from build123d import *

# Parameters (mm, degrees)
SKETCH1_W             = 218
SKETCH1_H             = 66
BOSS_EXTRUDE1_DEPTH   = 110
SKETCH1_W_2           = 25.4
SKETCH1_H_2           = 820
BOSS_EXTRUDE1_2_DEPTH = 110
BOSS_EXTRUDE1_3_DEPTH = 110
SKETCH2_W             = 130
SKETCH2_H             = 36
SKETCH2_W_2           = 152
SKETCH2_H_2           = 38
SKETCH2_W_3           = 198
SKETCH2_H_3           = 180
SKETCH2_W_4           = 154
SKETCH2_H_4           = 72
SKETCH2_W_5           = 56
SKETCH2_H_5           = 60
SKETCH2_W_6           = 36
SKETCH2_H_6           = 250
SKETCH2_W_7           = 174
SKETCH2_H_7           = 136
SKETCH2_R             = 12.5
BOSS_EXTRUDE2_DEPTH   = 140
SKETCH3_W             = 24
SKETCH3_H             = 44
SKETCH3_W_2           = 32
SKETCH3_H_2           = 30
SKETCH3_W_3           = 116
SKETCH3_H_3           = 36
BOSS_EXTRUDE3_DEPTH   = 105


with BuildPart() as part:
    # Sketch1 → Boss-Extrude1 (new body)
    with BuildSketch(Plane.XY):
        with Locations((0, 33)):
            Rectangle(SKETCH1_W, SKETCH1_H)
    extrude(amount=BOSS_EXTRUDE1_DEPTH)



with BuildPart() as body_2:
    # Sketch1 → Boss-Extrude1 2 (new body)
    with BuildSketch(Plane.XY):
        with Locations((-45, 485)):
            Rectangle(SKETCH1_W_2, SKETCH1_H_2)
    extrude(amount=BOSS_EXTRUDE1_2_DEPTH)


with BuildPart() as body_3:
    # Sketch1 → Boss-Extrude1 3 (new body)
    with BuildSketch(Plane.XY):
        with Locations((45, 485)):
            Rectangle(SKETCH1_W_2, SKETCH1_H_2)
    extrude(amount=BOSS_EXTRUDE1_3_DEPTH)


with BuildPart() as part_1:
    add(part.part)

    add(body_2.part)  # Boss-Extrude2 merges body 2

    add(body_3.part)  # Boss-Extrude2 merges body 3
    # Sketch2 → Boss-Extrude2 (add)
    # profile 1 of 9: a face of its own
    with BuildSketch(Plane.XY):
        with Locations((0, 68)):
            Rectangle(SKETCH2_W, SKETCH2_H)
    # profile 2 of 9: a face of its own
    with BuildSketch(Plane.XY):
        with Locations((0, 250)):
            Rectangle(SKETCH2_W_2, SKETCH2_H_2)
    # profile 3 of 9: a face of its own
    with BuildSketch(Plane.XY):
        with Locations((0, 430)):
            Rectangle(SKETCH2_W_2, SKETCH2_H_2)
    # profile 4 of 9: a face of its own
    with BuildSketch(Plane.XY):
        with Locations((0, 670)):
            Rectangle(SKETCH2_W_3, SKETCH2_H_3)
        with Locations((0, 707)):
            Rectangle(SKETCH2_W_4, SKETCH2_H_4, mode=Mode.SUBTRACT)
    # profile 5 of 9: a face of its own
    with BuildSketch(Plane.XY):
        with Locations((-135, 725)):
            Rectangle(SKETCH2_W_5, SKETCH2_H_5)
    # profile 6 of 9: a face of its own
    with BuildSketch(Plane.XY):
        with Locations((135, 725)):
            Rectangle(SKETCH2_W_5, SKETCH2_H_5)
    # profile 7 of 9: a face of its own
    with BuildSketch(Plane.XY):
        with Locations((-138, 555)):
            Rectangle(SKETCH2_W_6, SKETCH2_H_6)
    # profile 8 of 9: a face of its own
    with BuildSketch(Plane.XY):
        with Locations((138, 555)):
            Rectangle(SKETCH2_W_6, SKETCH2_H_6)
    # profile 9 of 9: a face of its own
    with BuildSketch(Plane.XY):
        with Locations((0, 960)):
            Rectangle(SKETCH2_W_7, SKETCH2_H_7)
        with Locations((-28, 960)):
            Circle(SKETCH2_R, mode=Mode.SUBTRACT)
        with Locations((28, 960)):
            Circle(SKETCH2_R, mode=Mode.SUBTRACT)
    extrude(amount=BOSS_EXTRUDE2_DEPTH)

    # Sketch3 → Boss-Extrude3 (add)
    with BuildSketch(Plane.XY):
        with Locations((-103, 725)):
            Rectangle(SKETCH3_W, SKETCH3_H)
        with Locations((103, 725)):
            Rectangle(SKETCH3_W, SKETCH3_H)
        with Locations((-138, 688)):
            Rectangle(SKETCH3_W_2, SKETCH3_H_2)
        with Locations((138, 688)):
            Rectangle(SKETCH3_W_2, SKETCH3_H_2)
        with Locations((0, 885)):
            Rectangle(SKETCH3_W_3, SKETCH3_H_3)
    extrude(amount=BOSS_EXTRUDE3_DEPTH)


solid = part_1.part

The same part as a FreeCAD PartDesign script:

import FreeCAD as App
import Part
import Sketcher

V = App.Vector

doc = App.newDocument("Part")
params = doc.addObject("Spreadsheet::Sheet", "Params")
for row, (alias, value) in enumerate([
    ("sketch1_width", "218 mm"),
    ("sketch1_height", "66 mm"),
    ("pad1_length", "110 mm"),
    ("sketch2_height", "820 mm"),
    ("sketch2_width", "25.4 mm"),
    ("pad2_length", "110 mm"),
    ("sketch3_height", "820 mm"),
    ("sketch3_width", "25.4 mm"),
    ("pad3_length", "110 mm"),
    ("sketch4_diameter", "25 mm"),
    ("sketch4_width", "130 mm"),
    ("sketch4_width2", "152 mm"),
    ("sketch4_width3", "198 mm"),
    ("sketch4_width4", "154 mm"),
    ("pad4_length", "140 mm"),
    ("sketch5_width", "24 mm"),
    ("sketch5_width2", "32 mm"),
    ("sketch5_width3", "116 mm"),
    ("sketch5_height", "44 mm"),
    ("sketch5_height2", "30 mm"),
    ("pad5_length", "105 mm"),
], start=1):
    params.set(f"A{row}", alias)
    params.set(f"B{row}", "=" + value)
    params.setAlias(f"B{row}", alias)

body = doc.addObject("PartDesign::Body", "Body")

sketch1 = body.newObject("Sketcher::SketchObject", "Sketch")
sketch1.AttachmentSupport = (doc.getObject("XY_Plane"), [""])
sketch1.MapMode = "FlatFace"
sketch1.addGeometry([
    Part.LineSegment(V(-109, 66, 0), V(-109, 0, 0)),
    Part.LineSegment(V(-109, 0, 0), V(109, 0, 0)),
    Part.LineSegment(V(109, 0, 0), V(109, 66, 0)),
    Part.LineSegment(V(109, 66, 0), V(-109, 66, 0)),
], False)
sketch1.addConstraint([
    Sketcher.Constraint("Coincident", 0, 2, 1, 1),
    Sketcher.Constraint("Coincident", 1, 2, 2, 1),
    Sketcher.Constraint("Coincident", 2, 2, 3, 1),
    Sketcher.Constraint("Coincident", 3, 2, 0, 1),
    Sketcher.Constraint("Vertical", 0),
    Sketcher.Constraint("Horizontal", 1),
    Sketcher.Constraint("Vertical", 2),
    Sketcher.Constraint("Horizontal", 3),
    Sketcher.Constraint("Symmetric", 0, 2, 1, 2, -1, 1),
    Sketcher.Constraint("DistanceX", 1, 1, 1, 2, 218.0),
    Sketcher.Constraint("DistanceY", 0, 2, 0, 1, 66.0),
])
sketch1.setExpression("Constraints[9]", "Params.sketch1_width")
sketch1.setExpression("Constraints[10]", "Params.sketch1_height")
pad1 = body.newObject("PartDesign::Pad", "Pad")
pad1.Profile = sketch1
pad1.setExpression("Length", "Params.pad1_length")
body2 = doc.addObject("PartDesign::Body", "Body001")

sketch2 = body2.newObject("Sketcher::SketchObject", "Sketch001")
sketch2.AttachmentSupport = (doc.getObject("XY_Plane001"), [""])
sketch2.MapMode = "FlatFace"
sketch2.addGeometry([
    Part.LineSegment(V(-57.7, 895, 0), V(-57.7, 75, 0)),
    Part.LineSegment(V(-57.7, 75, 0), V(-32.3, 75, 0)),
    Part.LineSegment(V(-32.3, 75, 0), V(-32.3, 895, 0)),
    Part.LineSegment(V(-32.3, 895, 0), V(-57.7, 895, 0)),
], False)
sketch2.addConstraint([
    Sketcher.Constraint("Coincident", 0, 2, 1, 1),
    Sketcher.Constraint("Coincident", 1, 2, 2, 1),
    Sketcher.Constraint("Coincident", 2, 2, 3, 1),
    Sketcher.Constraint("Coincident", 3, 2, 0, 1),
    Sketcher.Constraint("Vertical", 0),
    Sketcher.Constraint("Horizontal", 1),
    Sketcher.Constraint("Vertical", 2),
    Sketcher.Constraint("Horizontal", 3),
    Sketcher.Constraint("DistanceY", 0, 2, 0, 1, 820.0),
    Sketcher.Constraint("DistanceX", 1, 1, 1, 2, 25.4),
    Sketcher.Constraint("DistanceY", -1, 1, 0, 2, 75.0),
    Sketcher.Constraint("DistanceX", 0, 2, -1, 1, 57.7),
])
sketch2.setExpression("Constraints[8]", "Params.sketch2_height")
sketch2.setExpression("Constraints[9]", "Params.sketch2_width")
pad2 = body2.newObject("PartDesign::Pad", "Pad001")
pad2.Profile = sketch2
pad2.setExpression("Length", "Params.pad2_length")
body3 = doc.addObject("PartDesign::Body", "Body002")

sketch3 = body3.newObject("Sketcher::SketchObject", "Sketch002")
sketch3.AttachmentSupport = (doc.getObject("XY_Plane002"), [""])
sketch3.MapMode = "FlatFace"
sketch3.addGeometry([
    Part.LineSegment(V(32.3, 895, 0), V(32.3, 75, 0)),
    Part.LineSegment(V(32.3, 75, 0), V(57.7, 75, 0)),
    Part.LineSegment(V(57.7, 75, 0), V(57.7, 895, 0)),
    Part.LineSegment(V(57.7, 895, 0), V(32.3, 895, 0)),
], False)
sketch3.addConstraint([
    Sketcher.Constraint("Coincident", 0, 2, 1, 1),
    Sketcher.Constraint("Coincident", 1, 2, 2, 1),
    Sketcher.Constraint("Coincident", 2, 2, 3, 1),
    Sketcher.Constraint("Coincident", 3, 2, 0, 1),
    Sketcher.Constraint("Vertical", 0),
    Sketcher.Constraint("Horizontal", 1),
    Sketcher.Constraint("Vertical", 2),
    Sketcher.Constraint("Horizontal", 3),
    Sketcher.Constraint("DistanceY", 0, 2, 0, 1, 820.0),
    Sketcher.Constraint("DistanceX", 1, 1, 1, 2, 25.4),
    Sketcher.Constraint("DistanceY", -1, 1, 0, 2, 75.0),
    Sketcher.Constraint("DistanceX", -1, 1, 0, 2, 32.3),
])
sketch3.setExpression("Constraints[8]", "Params.sketch3_height")
sketch3.setExpression("Constraints[9]", "Params.sketch3_width")
pad3 = body3.newObject("PartDesign::Pad", "Pad002")
pad3.Profile = sketch3
pad3.setExpression("Length", "Params.pad3_length")
body.AllowCompound = True
doc.recompute()

boolean = body.newObject("PartDesign::Boolean", "Boolean")
boolean.Type = "Fuse"
boolean.addObjects([body2])
doc.recompute()

boolean2 = body.newObject("PartDesign::Boolean", "Boolean001")
boolean2.Type = "Fuse"
boolean2.addObjects([body3])

sketch4 = body.newObject("Sketcher::SketchObject", "Sketch003")
sketch4.AttachmentSupport = (doc.getObject("XY_Plane"), [""])
sketch4.MapMode = "FlatFace"
sketch4.addGeometry([
    Part.LineSegment(V(-65, 86, 0), V(-65, 50, 0)),
    Part.LineSegment(V(-65, 50, 0), V(65, 50, 0)),
    Part.LineSegment(V(65, 50, 0), V(65, 86, 0)),
    Part.LineSegment(V(65, 86, 0), V(-65, 86, 0)),
    Part.LineSegment(V(-76, 269, 0), V(-76, 231, 0)),
    Part.LineSegment(V(-76, 231, 0), V(76, 231, 0)),
    Part.LineSegment(V(76, 231, 0), V(76, 269, 0)),
    Part.LineSegment(V(76, 269, 0), V(-76, 269, 0)),
    Part.LineSegment(V(-76, 449, 0), V(-76, 411, 0)),
    Part.LineSegment(V(-76, 411, 0), V(76, 411, 0)),
    Part.LineSegment(V(76, 411, 0), V(76, 449, 0)),
    Part.LineSegment(V(76, 449, 0), V(-76, 449, 0)),
    Part.LineSegment(V(-99, 760, 0), V(-99, 580, 0)),
    Part.LineSegment(V(-99, 580, 0), V(99, 580, 0)),
    Part.LineSegment(V(99, 580, 0), V(99, 760, 0)),
    Part.LineSegment(V(99, 760, 0), V(-99, 760, 0)),
    Part.LineSegment(V(77, 671, 0), V(-77, 671, 0)),
    Part.LineSegment(V(-77, 671, 0), V(-77, 743, 0)),
    Part.LineSegment(V(-77, 743, 0), V(77, 743, 0)),
    Part.LineSegment(V(77, 743, 0), V(77, 671, 0)),
    Part.LineSegment(V(-163, 755, 0), V(-163, 695, 0)),
    Part.LineSegment(V(-163, 695, 0), V(-107, 695, 0)),
    Part.LineSegment(V(-107, 695, 0), V(-107, 755, 0)),
    Part.LineSegment(V(-107, 755, 0), V(-163, 755, 0)),
    Part.LineSegment(V(107, 755, 0), V(107, 695, 0)),
    Part.LineSegment(V(107, 695, 0), V(163, 695, 0)),
    Part.LineSegment(V(163, 695, 0), V(163, 755, 0)),
    Part.LineSegment(V(163, 755, 0), V(107, 755, 0)),
    Part.LineSegment(V(-156, 680, 0), V(-156, 430, 0)),
    Part.LineSegment(V(-156, 430, 0), V(-120, 430, 0)),
    Part.LineSegment(V(-120, 430, 0), V(-120, 680, 0)),
    Part.LineSegment(V(-120, 680, 0), V(-156, 680, 0)),
    Part.LineSegment(V(120, 680, 0), V(120, 430, 0)),
    Part.LineSegment(V(120, 430, 0), V(156, 430, 0)),
    Part.LineSegment(V(156, 430, 0), V(156, 680, 0)),
    Part.LineSegment(V(156, 680, 0), V(120, 680, 0)),
    Part.LineSegment(V(-87, 1028, 0), V(-87, 892, 0)),
    Part.LineSegment(V(-87, 892, 0), V(87, 892, 0)),
    Part.LineSegment(V(87, 892, 0), V(87, 1028, 0)),
    Part.LineSegment(V(87, 1028, 0), V(-87, 1028, 0)),
    Part.Circle(V(-28, 960, 0), V(0, 0, 1), 12.5),
    Part.Circle(V(28, 960, 0), V(0, 0, 1), 12.5),
], False)
sketch4.addConstraint([
    Sketcher.Constraint("Coincident", 0, 2, 1, 1),
    Sketcher.Constraint("Coincident", 1, 2, 2, 1),
    Sketcher.Constraint("Coincident", 2, 2, 3, 1),
    Sketcher.Constraint("Coincident", 3, 2, 0, 1),
    Sketcher.Constraint("Coincident", 4, 2, 5, 1),
    Sketcher.Constraint("Coincident", 5, 2, 6, 1),
    Sketcher.Constraint("Coincident", 6, 2, 7, 1),
    Sketcher.Constraint("Coincident", 7, 2, 4, 1),
    Sketcher.Constraint("Coincident", 8, 2, 9, 1),
    Sketcher.Constraint("Coincident", 9, 2, 10, 1),
    Sketcher.Constraint("Coincident", 10, 2, 11, 1),
    Sketcher.Constraint("Coincident", 11, 2, 8, 1),
    Sketcher.Constraint("Coincident", 12, 2, 13, 1),
    Sketcher.Constraint("Coincident", 13, 2, 14, 1),
    Sketcher.Constraint("Coincident", 14, 2, 15, 1),
    Sketcher.Constraint("Coincident", 15, 2, 12, 1),
    Sketcher.Constraint("Coincident", 16, 2, 17, 1),
    Sketcher.Constraint("Coincident", 17, 2, 18, 1),
    Sketcher.Constraint("Coincident", 18, 2, 19, 1),
    Sketcher.Constraint("Coincident", 19, 2, 16, 1),
    Sketcher.Constraint("Coincident", 20, 2, 21, 1),
    Sketcher.Constraint("Coincident", 21, 2, 22, 1),
    Sketcher.Constraint("Coincident", 22, 2, 23, 1),
    Sketcher.Constraint("Coincident", 23, 2, 20, 1),
    Sketcher.Constraint("Coincident", 24, 2, 25, 1),
    Sketcher.Constraint("Coincident", 25, 2, 26, 1),
    Sketcher.Constraint("Coincident", 26, 2, 27, 1),
    Sketcher.Constraint("Coincident", 27, 2, 24, 1),
    Sketcher.Constraint("Coincident", 28, 2, 29, 1),
    Sketcher.Constraint("Coincident", 29, 2, 30, 1),
    Sketcher.Constraint("Coincident", 30, 2, 31, 1),
    Sketcher.Constraint("Coincident", 31, 2, 28, 1),
    Sketcher.Constraint("Coincident", 32, 2, 33, 1),
    Sketcher.Constraint("Coincident", 33, 2, 34, 1),
    Sketcher.Constraint("Coincident", 34, 2, 35, 1),
    Sketcher.Constraint("Coincident", 35, 2, 32, 1),
    Sketcher.Constraint("Coincident", 36, 2, 37, 1),
    Sketcher.Constraint("Coincident", 37, 2, 38, 1),
    Sketcher.Constraint("Coincident", 38, 2, 39, 1),
    Sketcher.Constraint("Coincident", 39, 2, 36, 1),
    Sketcher.Constraint("Vertical", 0),
    Sketcher.Constraint("Horizontal", 1),
    Sketcher.Constraint("Vertical", 2),
    Sketcher.Constraint("Horizontal", 3),
    Sketcher.Constraint("Vertical", 4),
    Sketcher.Constraint("Horizontal", 5),
    Sketcher.Constraint("Vertical", 6),
    Sketcher.Constraint("Horizontal", 7),
    Sketcher.Constraint("Vertical", 8),
    Sketcher.Constraint("Horizontal", 9),
    Sketcher.Constraint("Vertical", 10),
    Sketcher.Constraint("Horizontal", 11),
    Sketcher.Constraint("Vertical", 12),
    Sketcher.Constraint("Horizontal", 13),
    Sketcher.Constraint("Vertical", 14),
    Sketcher.Constraint("Horizontal", 15),
    Sketcher.Constraint("Horizontal", 16),
    Sketcher.Constraint("Vertical", 17),
    Sketcher.Constraint("Horizontal", 18),
    Sketcher.Constraint("Vertical", 19),
    Sketcher.Constraint("Vertical", 20),
    Sketcher.Constraint("Horizontal", 21),
    Sketcher.Constraint("Vertical", 22),
    Sketcher.Constraint("Horizontal", 23),
    Sketcher.Constraint("Vertical", 24),
    Sketcher.Constraint("Horizontal", 25),
    Sketcher.Constraint("Vertical", 26),
    Sketcher.Constraint("Horizontal", 27),
    Sketcher.Constraint("Vertical", 28),
    Sketcher.Constraint("Horizontal", 29),
    Sketcher.Constraint("Vertical", 30),
    Sketcher.Constraint("Horizontal", 31),
    Sketcher.Constraint("Vertical", 32),
    Sketcher.Constraint("Horizontal", 33),
    Sketcher.Constraint("Vertical", 34),
    Sketcher.Constraint("Horizontal", 35),
    Sketcher.Constraint("Vertical", 36),
    Sketcher.Constraint("Horizontal", 37),
    Sketcher.Constraint("Vertical", 38),
    Sketcher.Constraint("Horizontal", 39),
    Sketcher.Constraint("Equal", 40, 41),
    Sketcher.Constraint("Symmetric", 40, 3, 41, 3, -2),
    Sketcher.Constraint("Symmetric", 21, 2, 24, 2, -2),
    Sketcher.Constraint("Symmetric", 23, 2, 26, 2, -2),
    Sketcher.Constraint("Symmetric", 29, 2, 32, 2, -2),
    Sketcher.Constraint("Symmetric", 31, 2, 34, 2, -2),
    Sketcher.Constraint("Vertical", 7, 2, 8, 2),
    Sketcher.Constraint("Vertical", 6, 2, 9, 2),
    Sketcher.Constraint("Equal", 35, 0),
    Sketcher.Constraint("Equal", 6, 8),
    Sketcher.Constraint("Diameter", 40, 25.0),
    Sketcher.Constraint("DistanceX", 1, 1, 1, 2, 130.0),
    Sketcher.Constraint("DistanceX", 5, 1, 5, 2, 152.0),
    Sketcher.Constraint("DistanceX", 13, 1, 13, 2, 198.0),
    Sketcher.Constraint("DistanceX", 16, 2, 16, 1, 154.0),
    Sketcher.Constraint("DistanceX", 21, 1, 21, 2, 56.0),
    Sketcher.Constraint("DistanceX", 29, 1, 29, 2, 36.0),
    Sketcher.Constraint("DistanceX", 37, 1, 37, 2, 174.0),
    Sketcher.Constraint("DistanceY", 4, 2, 4, 1, 38.0),
    Sketcher.Constraint("DistanceY", 12, 2, 12, 1, 180.0),
    Sketcher.Constraint("DistanceY", 17, 1, 17, 2, 72.0),
    Sketcher.Constraint("DistanceY", 20, 2, 20, 1, 60.0),
    Sketcher.Constraint("DistanceY", 28, 2, 28, 1, 250.0),
    Sketcher.Constraint("DistanceY", 36, 2, 36, 1, 136.0),
    Sketcher.Constraint("DistanceX", 40, 3, -1, 1, 28.0),
    Sketcher.Constraint("DistanceY", -1, 1, 40, 3, 960.0),
    Sketcher.Constraint("DistanceX", 0, 2, -1, 1, 65.0),
    Sketcher.Constraint("DistanceY", -1, 1, 0, 2, 50.0),
    Sketcher.Constraint("DistanceX", 4, 2, -1, 1, 76.0),
    Sketcher.Constraint("DistanceY", -1, 1, 4, 2, 231.0),
    Sketcher.Constraint("DistanceY", -1, 1, 8, 2, 411.0),
    Sketcher.Constraint("DistanceX", 12, 2, -1, 1, 99.0),
    Sketcher.Constraint("DistanceY", -1, 1, 12, 2, 580.0),
    Sketcher.Constraint("DistanceX", 16, 2, -1, 1, 77.0),
    Sketcher.Constraint("DistanceY", -1, 1, 16, 2, 671.0),
    Sketcher.Constraint("DistanceX", 20, 2, -1, 1, 163.0),
    Sketcher.Constraint("DistanceY", -1, 1, 20, 2, 695.0),
    Sketcher.Constraint("DistanceX", 28, 2, -1, 1, 156.0),
    Sketcher.Constraint("DistanceY", -1, 1, 28, 2, 430.0),
    Sketcher.Constraint("DistanceX", 36, 2, -1, 1, 87.0),
    Sketcher.Constraint("DistanceY", -1, 1, 36, 2, 892.0),
])
sketch4.setExpression("Constraints[90]", "Params.sketch4_diameter")
sketch4.setExpression("Constraints[91]", "Params.sketch4_width")
sketch4.setExpression("Constraints[92]", "Params.sketch4_width2")
sketch4.setExpression("Constraints[93]", "Params.sketch4_width3")
sketch4.setExpression("Constraints[94]", "Params.sketch4_width4")
pad4 = body.newObject("PartDesign::Pad", "Pad003")
pad4.Profile = sketch4
pad4.setExpression("Length", "Params.pad4_length")

sketch5 = body.newObject("Sketcher::SketchObject", "Sketch004")
sketch5.AttachmentSupport = (doc.getObject("XY_Plane"), [""])
sketch5.MapMode = "FlatFace"
sketch5.addGeometry([
    Part.LineSegment(V(-115, 747, 0), V(-115, 703, 0)),
    Part.LineSegment(V(-115, 703, 0), V(-91, 703, 0)),
    Part.LineSegment(V(-91, 703, 0), V(-91, 747, 0)),
    Part.LineSegment(V(-91, 747, 0), V(-115, 747, 0)),
    Part.LineSegment(V(91, 747, 0), V(91, 703, 0)),
    Part.LineSegment(V(91, 703, 0), V(115, 703, 0)),
    Part.LineSegment(V(115, 703, 0), V(115, 747, 0)),
    Part.LineSegment(V(115, 747, 0), V(91, 747, 0)),
    Part.LineSegment(V(-154, 703, 0), V(-154, 673, 0)),
    Part.LineSegment(V(-154, 673, 0), V(-122, 673, 0)),
    Part.LineSegment(V(-122, 673, 0), V(-122, 703, 0)),
    Part.LineSegment(V(-122, 703, 0), V(-154, 703, 0)),
    Part.LineSegment(V(122, 703, 0), V(122, 673, 0)),
    Part.LineSegment(V(122, 673, 0), V(154, 673, 0)),
    Part.LineSegment(V(154, 673, 0), V(154, 703, 0)),
    Part.LineSegment(V(154, 703, 0), V(122, 703, 0)),
    Part.LineSegment(V(-58, 903, 0), V(-58, 867, 0)),
    Part.LineSegment(V(-58, 867, 0), V(58, 867, 0)),
    Part.LineSegment(V(58, 867, 0), V(58, 903, 0)),
    Part.LineSegment(V(58, 903, 0), V(-58, 903, 0)),
], False)
sketch5.addConstraint([
    Sketcher.Constraint("Coincident", 0, 2, 1, 1),
    Sketcher.Constraint("Coincident", 1, 2, 2, 1),
    Sketcher.Constraint("Coincident", 2, 2, 3, 1),
    Sketcher.Constraint("Coincident", 3, 2, 0, 1),
    Sketcher.Constraint("Coincident", 4, 2, 5, 1),
    Sketcher.Constraint("Coincident", 5, 2, 6, 1),
    Sketcher.Constraint("Coincident", 6, 2, 7, 1),
    Sketcher.Constraint("Coincident", 7, 2, 4, 1),
    Sketcher.Constraint("Coincident", 8, 2, 9, 1),
    Sketcher.Constraint("Coincident", 9, 2, 10, 1),
    Sketcher.Constraint("Coincident", 10, 2, 11, 1),
    Sketcher.Constraint("Coincident", 11, 2, 8, 1),
    Sketcher.Constraint("Coincident", 12, 2, 13, 1),
    Sketcher.Constraint("Coincident", 13, 2, 14, 1),
    Sketcher.Constraint("Coincident", 14, 2, 15, 1),
    Sketcher.Constraint("Coincident", 15, 2, 12, 1),
    Sketcher.Constraint("Coincident", 16, 2, 17, 1),
    Sketcher.Constraint("Coincident", 17, 2, 18, 1),
    Sketcher.Constraint("Coincident", 18, 2, 19, 1),
    Sketcher.Constraint("Coincident", 19, 2, 16, 1),
    Sketcher.Constraint("Vertical", 0),
    Sketcher.Constraint("Horizontal", 1),
    Sketcher.Constraint("Vertical", 2),
    Sketcher.Constraint("Horizontal", 3),
    Sketcher.Constraint("Vertical", 4),
    Sketcher.Constraint("Horizontal", 5),
    Sketcher.Constraint("Vertical", 6),
    Sketcher.Constraint("Horizontal", 7),
    Sketcher.Constraint("Vertical", 8),
    Sketcher.Constraint("Horizontal", 9),
    Sketcher.Constraint("Vertical", 10),
    Sketcher.Constraint("Horizontal", 11),
    Sketcher.Constraint("Vertical", 12),
    Sketcher.Constraint("Horizontal", 13),
    Sketcher.Constraint("Vertical", 14),
    Sketcher.Constraint("Horizontal", 15),
    Sketcher.Constraint("Vertical", 16),
    Sketcher.Constraint("Horizontal", 17),
    Sketcher.Constraint("Vertical", 18),
    Sketcher.Constraint("Horizontal", 19),
    Sketcher.Constraint("Symmetric", 1, 2, 4, 2, -2),
    Sketcher.Constraint("Symmetric", 3, 2, 6, 2, -2),
    Sketcher.Constraint("Symmetric", 9, 2, 12, 2, -2),
    Sketcher.Constraint("Symmetric", 11, 2, 14, 2, -2),
    Sketcher.Constraint("Horizontal", 5, 2, 10, 2),
    Sketcher.Constraint("DistanceX", 1, 1, 1, 2, 24.0),
    Sketcher.Constraint("DistanceX", 9, 1, 9, 2, 32.0),
    Sketcher.Constraint("DistanceX", 17, 1, 17, 2, 116.0),
    Sketcher.Constraint("DistanceY", 0, 2, 0, 1, 44.0),
    Sketcher.Constraint("DistanceY", 8, 2, 8, 1, 30.0),
    Sketcher.Constraint("DistanceY", 16, 2, 16, 1, 36.0),
    Sketcher.Constraint("DistanceX", 0, 2, -1, 1, 115.0),
    Sketcher.Constraint("DistanceY", -1, 1, 0, 2, 703.0),
    Sketcher.Constraint("DistanceX", 8, 2, -1, 1, 154.0),
    Sketcher.Constraint("DistanceX", 16, 2, -1, 1, 58.0),
    Sketcher.Constraint("DistanceY", -1, 1, 16, 2, 867.0),
])
sketch5.setExpression("Constraints[45]", "Params.sketch5_width")
sketch5.setExpression("Constraints[46]", "Params.sketch5_width2")
sketch5.setExpression("Constraints[47]", "Params.sketch5_width3")
sketch5.setExpression("Constraints[48]", "Params.sketch5_height")
sketch5.setExpression("Constraints[49]", "Params.sketch5_height2")
pad5 = body.newObject("PartDesign::Pad", "Pad004")
pad5.Profile = sketch5
pad5.setExpression("Length", "Params.pad5_length")

doc.recompute()
